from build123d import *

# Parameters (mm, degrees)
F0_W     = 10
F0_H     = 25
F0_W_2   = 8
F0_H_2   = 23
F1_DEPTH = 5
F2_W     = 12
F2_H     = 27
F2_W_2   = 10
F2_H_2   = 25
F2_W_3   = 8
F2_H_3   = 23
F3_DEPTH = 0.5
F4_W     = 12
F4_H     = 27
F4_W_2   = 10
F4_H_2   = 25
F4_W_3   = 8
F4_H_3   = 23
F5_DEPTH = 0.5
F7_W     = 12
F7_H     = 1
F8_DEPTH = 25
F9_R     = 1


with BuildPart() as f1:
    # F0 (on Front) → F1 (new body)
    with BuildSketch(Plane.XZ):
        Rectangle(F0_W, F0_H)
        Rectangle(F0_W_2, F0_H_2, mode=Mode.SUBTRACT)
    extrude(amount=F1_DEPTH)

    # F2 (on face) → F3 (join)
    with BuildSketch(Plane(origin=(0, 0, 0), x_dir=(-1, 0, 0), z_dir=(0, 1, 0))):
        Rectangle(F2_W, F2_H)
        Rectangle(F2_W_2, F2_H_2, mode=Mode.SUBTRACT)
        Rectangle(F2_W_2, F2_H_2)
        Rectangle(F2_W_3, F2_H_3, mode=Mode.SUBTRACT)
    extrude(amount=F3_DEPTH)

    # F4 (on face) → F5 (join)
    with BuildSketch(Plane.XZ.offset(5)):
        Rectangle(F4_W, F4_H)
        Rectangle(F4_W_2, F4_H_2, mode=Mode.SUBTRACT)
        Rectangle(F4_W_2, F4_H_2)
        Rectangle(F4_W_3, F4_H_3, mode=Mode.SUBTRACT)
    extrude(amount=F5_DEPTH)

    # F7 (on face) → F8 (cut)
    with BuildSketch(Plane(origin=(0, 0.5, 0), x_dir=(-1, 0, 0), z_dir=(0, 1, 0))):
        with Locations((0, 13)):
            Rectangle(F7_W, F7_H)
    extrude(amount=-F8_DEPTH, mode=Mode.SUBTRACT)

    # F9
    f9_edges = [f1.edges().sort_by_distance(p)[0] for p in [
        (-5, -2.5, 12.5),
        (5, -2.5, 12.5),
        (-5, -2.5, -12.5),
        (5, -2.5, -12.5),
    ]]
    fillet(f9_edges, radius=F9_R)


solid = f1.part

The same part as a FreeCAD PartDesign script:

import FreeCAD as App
import Part
import Sketcher

V = App.Vector


def edges_at(feature, points):
    """Names of the edges that pass closest to the given points."""
    edges = feature.Shape.Edges
    near = lambda p: min(range(len(edges)), key=lambda i: edges[i].distToShape(Part.Vertex(*p))[0])
    return sorted({f"Edge{near(p) + 1}" for p in points})

doc = App.newDocument("Part")
body = doc.addObject("PartDesign::Body", "Body")

# Sketch on XZ plane
sketch1 = doc.addObject("Sketcher::SketchObject", "Sketch")
body.addObject(sketch1)
sketch1.AttachmentSupport = (doc.XZ_Plane, [""])
sketch1.MapMode = "FlatFace"
sketch1.addGeometry(Part.LineSegment(V(-5, 12, 0), V(-5, -12, 0)), False)
sketch1.addGeometry(Part.LineSegment(V(-5, -12, 0), V(5, -12, 0)), False)
sketch1.addGeometry(Part.LineSegment(V(5, -12, 0), V(5, 12, 0)), False)
sketch1.addGeometry(Part.LineSegment(V(5, 12, 0), V(-5, 12, 0)), False)
sketch1.addGeometry(Part.LineSegment(V(4, -12, 0), V(-4, -12, 0)), False)
sketch1.addGeometry(Part.LineSegment(V(-4, -12, 0), V(-4, 12, 0)), False)
sketch1.addGeometry(Part.LineSegment(V(-4, 12, 0), V(4, 12, 0)), False)
sketch1.addGeometry(Part.LineSegment(V(4, 12, 0), V(4, -12, 0)), False)
sketch1.addConstraint(Sketcher.Constraint("Coincident", 0, 2, 1, 1))
sketch1.addConstraint(Sketcher.Constraint("Coincident", 1, 2, 2, 1))
sketch1.addConstraint(Sketcher.Constraint("Coincident", 2, 2, 3, 1))
sketch1.addConstraint(Sketcher.Constraint("Coincident", 3, 2, 0, 1))
sketch1.addConstraint(Sketcher.Constraint("Coincident", 4, 2, 5, 1))
sketch1.addConstraint(Sketcher.Constraint("Coincident", 5, 2, 6, 1))
sketch1.addConstraint(Sketcher.Constraint("Coincident", 6, 2, 7, 1))
sketch1.addConstraint(Sketcher.Constraint("Coincident", 7, 2, 4, 1))
sketch1.addConstraint(Sketcher.Constraint("Vertical", 0))
sketch1.addConstraint(Sketcher.Constraint("Horizontal", 1))
sketch1.addConstraint(Sketcher.Constraint("Vertical", 2))
sketch1.addConstraint(Sketcher.Constraint("Horizontal", 3))
sketch1.addConstraint(Sketcher.Constraint("Horizontal", 4))
sketch1.addConstraint(Sketcher.Constraint("Vertical", 5))
sketch1.addConstraint(Sketcher.Constraint("Horizontal", 6))
sketch1.addConstraint(Sketcher.Constraint("Vertical", 7))
sketch1.addConstraint(Sketcher.Constraint("Symmetric", 0, 2, 2, 2, -1, 1))
sketch1.addConstraint(Sketcher.Constraint("Symmetric", 4, 2, 6, 2, -1, 1))
sketch1.addConstraint(Sketcher.Constraint("DistanceX", 1, 1, 1, 2, 10.0))
sketch1.addConstraint(Sketcher.Constraint("DistanceX", 4, 2, 4, 1, 8.0))
sketch1.addConstraint(Sketcher.Constraint("DistanceY", 0, 2, 0, 1, 25.0))
sketch1.addConstraint(Sketcher.Constraint("DistanceY", 5, 1, 5, 2, 23.0))
pad1 = doc.addObject("PartDesign::Pad", "Pad")
body.addObject(pad1)
pad1.Profile = sketch1
pad1.Length = 5

# Sketch on XZ plane
sketch2 = doc.addObject("Sketcher::SketchObject", "Sketch001")
body.addObject(sketch2)
sketch2.AttachmentSupport = (doc.XZ_Plane, [""])
sketch2.MapMode = "FlatFace"
sketch2.addGeometry(Part.LineSegment(V(6, 14, 0), V(6, -14, 0)), False)
sketch2.addGeometry(Part.LineSegment(V(6, -14, 0), V(-6, -14, 0)), False)
sketch2.addGeometry(Part.LineSegment(V(-6, -14, 0), V(-6, 14, 0)), False)
sketch2.addGeometry(Part.LineSegment(V(-6, 14, 0), V(6, 14, 0)), False)
sketch2.addGeometry(Part.LineSegment(V(-4, -12, 0), V(4, -12, 0)), False)
sketch2.addGeometry(Part.LineSegment(V(4, -12, 0), V(4, 12, 0)), False)
sketch2.addGeometry(Part.LineSegment(V(4, 12, 0), V(-4, 12, 0)), False)
sketch2.addGeometry(Part.LineSegment(V(-4, 12, 0), V(-4, -12, 0)), False)
sketch2.addConstraint(Sketcher.Constraint("Coincident", 0, 2, 1, 1))
sketch2.addConstraint(Sketcher.Constraint("Coincident", 1, 2, 2, 1))
sketch2.addConstraint(Sketcher.Constraint("Coincident", 2, 2, 3, 1))
sketch2.addConstraint(Sketcher.Constraint("Coincident", 3, 2, 0, 1))
sketch2.addConstraint(Sketcher.Constraint("Coincident", 4, 2, 5, 1))
sketch2.addConstraint(Sketcher.Constraint("Coincident", 5, 2, 6, 1))
sketch2.addConstraint(Sketcher.Constraint("Coincident", 6, 2, 7, 1))
sketch2.addConstraint(Sketcher.Constraint("Coincident", 7, 2, 4, 1))
sketch2.addConstraint(Sketcher.Constraint("Vertical", 0))
sketch2.addConstraint(Sketcher.Constraint("Horizontal", 1))
sketch2.addConstraint(Sketcher.Constraint("Vertical", 2))
sketch2.addConstraint(Sketcher.Constraint("Horizontal", 3))
sketch2.addConstraint(Sketcher.Constraint("Horizontal", 4))
sketch2.addConstraint(Sketcher.Constraint("Vertical", 5))
sketch2.addConstraint(Sketcher.Constraint("Horizontal", 6))
sketch2.addConstraint(Sketcher.Constraint("Vertical", 7))
sketch2.addConstraint(Sketcher.Constraint("Symmetric", 0, 2, 2, 2, -1, 1))
sketch2.addConstraint(Sketcher.Constraint("Symmetric", 4, 2, 6, 2, -1, 1))
sketch2.addConstraint(Sketcher.Constraint("DistanceX", 1, 2, 1, 1, 12.0))
sketch2.addConstraint(Sketcher.Constraint("DistanceX", 4, 1, 4, 2, 8.0))
sketch2.addConstraint(Sketcher.Constraint("DistanceY", 0, 2, 0, 1, 27.0))
sketch2.addConstraint(Sketcher.Constraint("DistanceY", 5, 1, 5, 2, 23.0))
pad2 = doc.addObject("PartDesign::Pad", "Pad001")
body.addObject(pad2)
pad2.Profile = sketch2
pad2.Length = 0.5
pad2.Reversed = True

# Sketch on XZ plane
sketch3 = doc.addObject("Sketcher::SketchObject", "Sketch002")
body.addObject(sketch3)
sketch3.AttachmentSupport = (doc.XZ_Plane, [""])
sketch3.MapMode = "FlatFace"
sketch3.AttachmentOffset = App.Placement(V(0, 0, 5), App.Rotation())
sketch3.addGeometry(Part.LineSegment(V(-6, 14, 0), V(-6, -14, 0)), False)
sketch3.addGeometry(Part.LineSegment(V(-6, -14, 0), V(6, -14, 0)), False)
sketch3.addGeometry(Part.LineSegment(V(6, -14, 0), V(6, 14, 0)), False)
sketch3.addGeometry(Part.LineSegment(V(6, 14, 0), V(-6, 14, 0)), False)
sketch3.addGeometry(Part.LineSegment(V(4, -12, 0), V(-4, -12, 0)), False)
sketch3.addGeometry(Part.LineSegment(V(-4, -12, 0), V(-4, 12, 0)), False)
sketch3.addGeometry(Part.LineSegment(V(-4, 12, 0), V(4, 12, 0)), False)
sketch3.addGeometry(Part.LineSegment(V(4, 12, 0), V(4, -12, 0)), False)
sketch3.addConstraint(Sketcher.Constraint("Coincident", 0, 2, 1, 1))
sketch3.addConstraint(Sketcher.Constraint("Coincident", 1, 2, 2, 1))
sketch3.addConstraint(Sketcher.Constraint("Coincident", 2, 2, 3, 1))
sketch3.addConstraint(Sketcher.Constraint("Coincident", 3, 2, 0, 1))
sketch3.addConstraint(Sketcher.Constraint("Coincident", 4, 2, 5, 1))
sketch3.addConstraint(Sketcher.Constraint("Coincident", 5, 2, 6, 1))
sketch3.addConstraint(Sketcher.Constraint("Coincident", 6, 2, 7, 1))
sketch3.addConstraint(Sketcher.Constraint("Coincident", 7, 2, 4, 1))
sketch3.addConstraint(Sketcher.Constraint("Vertical", 0))
sketch3.addConstraint(Sketcher.Constraint("Horizontal", 1))
sketch3.addConstraint(Sketcher.Constraint("Vertical", 2))
sketch3.addConstraint(Sketcher.Constraint("Horizontal", 3))
sketch3.addConstraint(Sketcher.Constraint("Horizontal", 4))
sketch3.addConstraint(Sketcher.Constraint("Vertical", 5))
sketch3.addConstraint(Sketcher.Constraint("Horizontal", 6))
sketch3.addConstraint(Sketcher.Constraint("Vertical", 7))
sketch3.addConstraint(Sketcher.Constraint("Symmetric", 0, 2, 2, 2, -1, 1))
sketch3.addConstraint(Sketcher.Constraint("Symmetric", 4, 2, 6, 2, -1, 1))
sketch3.addConstraint(Sketcher.Constraint("DistanceX", 1, 1, 1, 2, 12.0))
sketch3.addConstraint(Sketcher.Constraint("DistanceX", 4, 2, 4, 1, 8.0))
sketch3.addConstraint(Sketcher.Constraint("DistanceY", 0, 2, 0, 1, 27.0))
sketch3.addConstraint(Sketcher.Constraint("DistanceY", 5, 1, 5, 2, 23.0))
pad3 = doc.addObject("PartDesign::Pad", "Pad002")
body.addObject(pad3)
pad3.Profile = sketch3
pad3.Length = 0.5

# Sketch on XZ plane
sketch4 = doc.addObject("Sketcher::SketchObject", "Sketch003")
body.addObject(sketch4)
sketch4.AttachmentSupport = (doc.XZ_Plane, [""])
sketch4.MapMode = "FlatFace"
sketch4.AttachmentOffset = App.Placement(V(0, 0, -0.5), App.Rotation())
sketch4.addGeometry(Part.LineSegment(V(6, 13.5, 0), V(6, 12.5, 0)), False)
sketch4.addGeometry(Part.LineSegment(V(6, 12.5, 0), V(-6, 12.5, 0)), False)
sketch4.addGeometry(Part.LineSegment(V(-6, 12.5, 0), V(-6, 13.5, 0)), False)
sketch4.addGeometry(Part.LineSegment(V(-6, 13.5, 0), V(6, 13.5, 0)), False)
sketch4.addConstraint(Sketcher.Constraint("Coincident", 0, 2, 1, 1))
sketch4.addConstraint(Sketcher.Constraint("Coincident", 1, 2, 2, 1))
sketch4.addConstraint(Sketcher.Constraint("Coincident", 2, 2, 3, 1))
sketch4.addConstraint(Sketcher.Constraint("Coincident", 3, 2, 0, 1))
sketch4.addConstraint(Sketcher.Constraint("Vertical", 0))
sketch4.addConstraint(Sketcher.Constraint("Horizontal", 1))
sketch4.addConstraint(Sketcher.Constraint("Vertical", 2))
sketch4.addConstraint(Sketcher.Constraint("Horizontal", 3))
sketch4.addConstraint(Sketcher.Constraint("DistanceX", 1, 2, 1, 1, 12.0))
sketch4.addConstraint(Sketcher.Constraint("DistanceY", 0, 2, 0, 1, 1.0))
sketch4.addConstraint(Sketcher.Constraint("DistanceX", -1, 1, 0, 2, 6.0))
sketch4.addConstraint(Sketcher.Constraint("DistanceY", -1, 1, 0, 2, 12.5))
pocket1 = doc.addObject("PartDesign::Pocket", "Pocket")
body.addObject(pocket1)
pocket1.Profile = sketch4
pocket1.Length = 25
pocket1.Reversed = True
doc.recompute()

fillet = doc.addObject("PartDesign::Fillet", "Fillet")
body.addObject(fillet)
fillet.Base = (pocket1, edges_at(pocket1, [
    (-5, -2.5, 12.5),
    (5, -2.5, 12.5),
    (-5, -2.5, -12.5),
    (5, -2.5, -12.5),
]))
fillet.Radius = 1

doc.recompute()
